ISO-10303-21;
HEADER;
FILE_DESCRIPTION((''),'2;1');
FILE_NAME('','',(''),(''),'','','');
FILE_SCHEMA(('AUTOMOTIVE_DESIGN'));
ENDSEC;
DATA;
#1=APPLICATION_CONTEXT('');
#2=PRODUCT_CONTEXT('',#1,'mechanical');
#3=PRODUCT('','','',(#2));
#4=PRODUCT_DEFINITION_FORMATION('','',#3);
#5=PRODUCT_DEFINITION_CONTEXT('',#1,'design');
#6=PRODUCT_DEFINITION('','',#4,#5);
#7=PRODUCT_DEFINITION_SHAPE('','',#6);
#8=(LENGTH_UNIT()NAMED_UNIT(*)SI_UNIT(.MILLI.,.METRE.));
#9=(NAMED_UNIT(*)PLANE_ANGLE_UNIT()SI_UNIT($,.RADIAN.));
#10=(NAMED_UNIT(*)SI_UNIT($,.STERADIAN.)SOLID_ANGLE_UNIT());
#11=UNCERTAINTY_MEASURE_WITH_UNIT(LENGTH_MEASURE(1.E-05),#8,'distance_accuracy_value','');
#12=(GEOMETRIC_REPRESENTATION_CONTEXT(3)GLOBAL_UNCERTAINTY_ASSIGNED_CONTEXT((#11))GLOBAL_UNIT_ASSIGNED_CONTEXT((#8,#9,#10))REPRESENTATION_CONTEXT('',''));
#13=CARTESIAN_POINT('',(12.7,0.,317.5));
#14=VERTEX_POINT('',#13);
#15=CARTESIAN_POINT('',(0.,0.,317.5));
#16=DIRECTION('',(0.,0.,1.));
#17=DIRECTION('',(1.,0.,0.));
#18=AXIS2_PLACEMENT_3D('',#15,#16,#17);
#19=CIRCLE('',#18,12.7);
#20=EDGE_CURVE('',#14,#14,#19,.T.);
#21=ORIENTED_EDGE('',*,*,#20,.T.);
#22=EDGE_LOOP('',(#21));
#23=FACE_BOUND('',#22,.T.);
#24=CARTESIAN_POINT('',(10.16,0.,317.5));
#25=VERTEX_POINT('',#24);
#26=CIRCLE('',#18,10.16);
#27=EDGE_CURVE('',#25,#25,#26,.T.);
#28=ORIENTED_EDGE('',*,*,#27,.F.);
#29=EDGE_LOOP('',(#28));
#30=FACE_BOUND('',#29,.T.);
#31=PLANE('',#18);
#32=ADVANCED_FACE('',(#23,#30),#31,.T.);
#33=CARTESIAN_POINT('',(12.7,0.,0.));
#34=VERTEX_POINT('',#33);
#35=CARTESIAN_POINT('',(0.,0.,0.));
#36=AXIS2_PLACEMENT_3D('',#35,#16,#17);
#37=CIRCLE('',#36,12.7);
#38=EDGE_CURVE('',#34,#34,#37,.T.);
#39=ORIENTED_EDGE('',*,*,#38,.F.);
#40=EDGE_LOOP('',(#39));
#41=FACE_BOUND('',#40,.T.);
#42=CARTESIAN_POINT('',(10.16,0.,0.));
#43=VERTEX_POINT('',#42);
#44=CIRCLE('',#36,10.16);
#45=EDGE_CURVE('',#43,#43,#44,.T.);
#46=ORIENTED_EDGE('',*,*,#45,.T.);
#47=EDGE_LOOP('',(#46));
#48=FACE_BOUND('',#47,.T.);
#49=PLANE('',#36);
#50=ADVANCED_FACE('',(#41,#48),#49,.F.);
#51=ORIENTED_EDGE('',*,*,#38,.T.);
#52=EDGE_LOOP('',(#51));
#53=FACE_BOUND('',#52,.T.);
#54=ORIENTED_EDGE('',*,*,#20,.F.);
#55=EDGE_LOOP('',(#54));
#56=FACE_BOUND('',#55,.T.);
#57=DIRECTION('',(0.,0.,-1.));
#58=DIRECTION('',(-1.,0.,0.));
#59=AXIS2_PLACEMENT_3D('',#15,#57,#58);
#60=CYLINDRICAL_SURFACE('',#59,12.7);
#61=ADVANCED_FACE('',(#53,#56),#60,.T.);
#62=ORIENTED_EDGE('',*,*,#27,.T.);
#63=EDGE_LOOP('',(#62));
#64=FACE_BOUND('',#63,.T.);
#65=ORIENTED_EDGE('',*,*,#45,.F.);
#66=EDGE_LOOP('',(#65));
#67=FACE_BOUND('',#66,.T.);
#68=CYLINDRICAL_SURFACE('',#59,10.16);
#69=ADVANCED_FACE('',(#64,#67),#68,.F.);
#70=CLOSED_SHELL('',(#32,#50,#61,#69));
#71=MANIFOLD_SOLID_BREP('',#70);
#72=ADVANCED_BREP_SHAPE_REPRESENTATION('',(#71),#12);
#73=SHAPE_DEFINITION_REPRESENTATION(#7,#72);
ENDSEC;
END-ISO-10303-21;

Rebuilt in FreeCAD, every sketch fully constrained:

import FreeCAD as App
import Part
import Sketcher
Q = App.Units.Quantity

doc = App.newDocument("Part")
body = doc.addObject("PartDesign::Body", "Body")

# Sketch on XY plane
sketch1 = body.newObject("Sketcher::SketchObject", "Sketch")
sketch1.AttachmentSupport = (doc.getObject("XY_Plane"), [""])
sketch1.MapMode = "FlatFace"
sketch1.addGeometry([
    Part.Circle(App.Vector(0, 0, 0), App.Vector(0, 0, 1), 13),
    Part.Circle(App.Vector(0, 0, 0), App.Vector(0, 0, 1), 10),
], False)
sketch1.addConstraint([
    Sketcher.Constraint("Coincident", 0, 3, -1, 1),
    Sketcher.Constraint("Coincident", 1, 3, -1, 1),
    Sketcher.Constraint("Diameter", 0, Q("1 in")),
    Sketcher.Constraint("Diameter", 1, Q("0.8 in")),
])
pad1 = body.newObject("PartDesign::Pad", "Pad")
pad1.Profile = sketch1
pad1.Length = Q("12.5 in")

doc.recompute()
